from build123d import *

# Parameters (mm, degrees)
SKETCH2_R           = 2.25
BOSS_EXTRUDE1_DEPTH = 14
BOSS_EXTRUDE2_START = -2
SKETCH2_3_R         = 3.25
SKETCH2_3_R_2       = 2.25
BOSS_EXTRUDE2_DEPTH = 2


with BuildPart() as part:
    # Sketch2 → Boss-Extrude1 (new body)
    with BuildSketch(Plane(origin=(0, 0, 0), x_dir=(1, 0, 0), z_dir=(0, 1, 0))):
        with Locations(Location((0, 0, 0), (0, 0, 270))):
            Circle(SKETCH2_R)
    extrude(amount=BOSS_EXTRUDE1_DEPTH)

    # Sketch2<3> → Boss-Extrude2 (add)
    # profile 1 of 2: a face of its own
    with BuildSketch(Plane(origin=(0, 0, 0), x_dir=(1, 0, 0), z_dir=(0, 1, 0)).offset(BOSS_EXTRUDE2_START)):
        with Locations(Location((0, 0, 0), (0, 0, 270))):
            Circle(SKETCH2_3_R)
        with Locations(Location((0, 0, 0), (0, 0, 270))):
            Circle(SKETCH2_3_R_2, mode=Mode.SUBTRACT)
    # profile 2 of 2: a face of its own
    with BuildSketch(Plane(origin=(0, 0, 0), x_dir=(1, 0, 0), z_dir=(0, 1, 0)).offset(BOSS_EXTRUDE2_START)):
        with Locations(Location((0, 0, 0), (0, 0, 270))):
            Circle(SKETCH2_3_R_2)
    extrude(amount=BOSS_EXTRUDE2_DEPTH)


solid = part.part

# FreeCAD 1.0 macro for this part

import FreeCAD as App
import Part
import Sketcher
from FreeCAD import Vector
Q = App.Units.Quantity

doc = App.newDocument("Part")
params = doc.addObject("Spreadsheet::Sheet", "Params")
for row, (alias, value) in enumerate([
    ("sketch1_diameter", "4.5 mm"),
    ("pad1_length", "14 mm"),
    ("sketch2_diameter", "6.5 mm"),
    ("pad2_length", "2 mm"),
], start=1):
    params.set(f"A{row}", alias)
    params.set(f"B{row}", "=" + value)
    params.setAlias(f"B{row}", alias)

body = doc.addObject("PartDesign::Body", "Body")

# Sketch on XZ plane
sketch1 = body.newObject("Sketcher::SketchObject", "Sketch")
sketch1.AttachmentSupport = (doc.getObject("XZ_Plane"), [""])
sketch1.MapMode = "FlatFace"
sketch1.addGeometry(Part.Circle(Vector(0, 0, 0), Vector(0, 0, 1), 2.2), False)
sketch1.addConstraint([
    Sketcher.Constraint("Coincident", 0, 3, -1, 1),
    Sketcher.Constraint("Diameter", 0, Q("4.5 mm")),
])
sketch1.setExpression("Constraints[1]", "Params.sketch1_diameter")
pad1 = body.newObject("PartDesign::Pad", "Pad")
pad1.Profile = sketch1
pad1.setExpression("Length", "Params.pad1_length")
pad1.Reversed = True

# Sketch on XZ plane
sketch2 = body.newObject("Sketcher::SketchObject", "Sketch001")
sketch2.AttachmentSupport = (doc.getObject("XZ_Plane"), [""])
sketch2.MapMode = "FlatFace"
sketch2.AttachmentOffset = App.Placement(Vector(0, 0, 2), App.Rotation())
sketch2.addGeometry(Part.Circle(Vector(0, 0, 0), Vector(0, 0, 1), 3.2), False)
sketch2.addConstraint([
    Sketcher.Constraint("Coincident", 0, 3, -1, 1),
    Sketcher.Constraint("Diameter", 0, Q("6.5 mm")),
])
sketch2.setExpression("Constraints[1]", "Params.sketch2_diameter")
pad2 = body.newObject("PartDesign::Pad", "Pad001")
pad2.Profile = sketch2
pad2.setExpression("Length", "Params.pad2_length")
pad2.Reversed = True

doc.recompute()
